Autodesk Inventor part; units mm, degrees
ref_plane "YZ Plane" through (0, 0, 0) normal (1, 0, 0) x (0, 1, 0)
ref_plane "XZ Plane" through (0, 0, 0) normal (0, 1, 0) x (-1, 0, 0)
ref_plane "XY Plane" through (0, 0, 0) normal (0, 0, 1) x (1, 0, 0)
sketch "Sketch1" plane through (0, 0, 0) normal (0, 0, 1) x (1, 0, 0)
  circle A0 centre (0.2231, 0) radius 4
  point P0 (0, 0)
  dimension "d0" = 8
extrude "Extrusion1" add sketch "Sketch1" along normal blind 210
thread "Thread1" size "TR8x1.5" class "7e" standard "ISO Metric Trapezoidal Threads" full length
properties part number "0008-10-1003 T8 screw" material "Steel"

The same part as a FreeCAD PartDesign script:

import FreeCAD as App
import Part
import Sketcher
from FreeCAD import Vector
Q = App.Units.Quantity

doc = App.newDocument("Part")
body = doc.addObject("PartDesign::Body", "Body")

# Sketch on XY plane
sketch1 = body.newObject("Sketcher::SketchObject", "Sketch")
sketch1.AttachmentSupport = (doc.getObject("XY_Plane"), [""])
sketch1.MapMode = "FlatFace"
sketch1.addGeometry(Part.Circle(Vector(0.2, 0, 0), Vector(0, 0, 1), 4), False)
sketch1.addConstraint([
    Sketcher.Constraint("PointOnObject", 0, 3, -1),
    Sketcher.Constraint("Diameter", 0, Q("8 mm")),
    Sketcher.Constraint("DistanceX", -1, 1, 0, 3, Q("0.223 mm")),
])
pad1 = body.newObject("PartDesign::Pad", "Pad")
pad1.Profile = sketch1
pad1.Length = 210

doc.recompute()
